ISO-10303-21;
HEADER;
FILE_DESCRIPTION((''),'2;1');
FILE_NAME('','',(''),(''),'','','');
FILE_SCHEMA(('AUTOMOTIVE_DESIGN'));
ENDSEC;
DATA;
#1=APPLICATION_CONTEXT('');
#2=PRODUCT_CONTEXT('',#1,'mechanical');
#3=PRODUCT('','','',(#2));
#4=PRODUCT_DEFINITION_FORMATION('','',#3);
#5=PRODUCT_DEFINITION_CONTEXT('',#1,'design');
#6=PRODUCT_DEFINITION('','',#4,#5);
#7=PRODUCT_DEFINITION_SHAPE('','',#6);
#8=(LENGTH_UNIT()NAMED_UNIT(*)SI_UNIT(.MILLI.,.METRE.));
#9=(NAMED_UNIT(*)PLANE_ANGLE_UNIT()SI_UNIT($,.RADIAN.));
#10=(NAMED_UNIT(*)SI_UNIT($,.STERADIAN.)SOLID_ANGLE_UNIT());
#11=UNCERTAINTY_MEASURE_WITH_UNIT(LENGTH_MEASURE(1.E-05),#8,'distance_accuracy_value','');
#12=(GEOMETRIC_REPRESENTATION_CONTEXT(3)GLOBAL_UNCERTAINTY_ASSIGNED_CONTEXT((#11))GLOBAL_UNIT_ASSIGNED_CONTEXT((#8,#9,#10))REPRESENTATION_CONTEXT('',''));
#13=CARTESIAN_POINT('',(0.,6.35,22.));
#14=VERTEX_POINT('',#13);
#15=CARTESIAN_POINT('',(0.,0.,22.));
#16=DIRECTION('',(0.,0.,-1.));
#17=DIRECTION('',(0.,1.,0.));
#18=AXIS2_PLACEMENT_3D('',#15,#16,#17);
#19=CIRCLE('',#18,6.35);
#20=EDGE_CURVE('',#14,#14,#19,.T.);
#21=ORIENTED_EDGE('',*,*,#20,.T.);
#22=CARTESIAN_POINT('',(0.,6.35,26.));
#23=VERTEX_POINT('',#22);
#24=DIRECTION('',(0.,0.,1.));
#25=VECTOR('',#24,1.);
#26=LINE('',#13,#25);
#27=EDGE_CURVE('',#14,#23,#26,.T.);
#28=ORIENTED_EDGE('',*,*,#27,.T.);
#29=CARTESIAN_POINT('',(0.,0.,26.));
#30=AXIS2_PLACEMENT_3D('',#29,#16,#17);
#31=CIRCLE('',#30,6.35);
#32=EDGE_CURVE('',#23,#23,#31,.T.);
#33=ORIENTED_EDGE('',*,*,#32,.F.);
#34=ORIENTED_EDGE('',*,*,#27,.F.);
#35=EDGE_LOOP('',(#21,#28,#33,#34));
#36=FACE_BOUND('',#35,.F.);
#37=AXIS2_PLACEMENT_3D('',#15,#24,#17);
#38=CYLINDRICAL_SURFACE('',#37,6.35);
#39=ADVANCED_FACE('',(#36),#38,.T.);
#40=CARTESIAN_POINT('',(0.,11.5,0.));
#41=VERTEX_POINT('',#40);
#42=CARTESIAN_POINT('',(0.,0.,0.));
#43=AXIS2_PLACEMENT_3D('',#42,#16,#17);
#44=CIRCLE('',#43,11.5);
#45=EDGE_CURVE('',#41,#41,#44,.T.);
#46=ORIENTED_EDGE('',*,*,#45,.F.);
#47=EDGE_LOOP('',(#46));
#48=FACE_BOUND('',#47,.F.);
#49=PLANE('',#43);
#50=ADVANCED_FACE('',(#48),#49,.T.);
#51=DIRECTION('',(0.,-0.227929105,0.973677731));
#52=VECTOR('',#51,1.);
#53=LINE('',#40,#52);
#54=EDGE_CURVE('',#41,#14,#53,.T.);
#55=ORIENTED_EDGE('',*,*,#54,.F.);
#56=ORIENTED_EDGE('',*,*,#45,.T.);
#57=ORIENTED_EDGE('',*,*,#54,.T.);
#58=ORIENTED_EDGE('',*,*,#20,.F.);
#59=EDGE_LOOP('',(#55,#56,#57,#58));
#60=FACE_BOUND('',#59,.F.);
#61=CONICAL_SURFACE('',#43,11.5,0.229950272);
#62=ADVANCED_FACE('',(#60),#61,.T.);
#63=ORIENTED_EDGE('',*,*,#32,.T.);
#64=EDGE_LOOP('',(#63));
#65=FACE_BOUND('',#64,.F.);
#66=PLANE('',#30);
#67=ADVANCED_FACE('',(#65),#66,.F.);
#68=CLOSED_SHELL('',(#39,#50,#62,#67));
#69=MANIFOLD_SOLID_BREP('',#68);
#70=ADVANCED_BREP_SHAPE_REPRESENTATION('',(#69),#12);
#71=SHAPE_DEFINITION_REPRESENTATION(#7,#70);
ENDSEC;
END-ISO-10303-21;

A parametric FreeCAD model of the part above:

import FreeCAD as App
import Part
import Sketcher
from FreeCAD import Vector
Q = App.Units.Quantity


def add_polygon(sketch, points):
    """Adds a closed chain of lines whose ends are joined by coincident constraints."""
    first, n = sketch.GeometryCount, len(points)
    for a, b in zip(points, points[1:] + points[:1]):
        sketch.addGeometry(Part.LineSegment(App.Vector(*a, 0), App.Vector(*b, 0)), False)
    for i in range(n):
        sketch.addConstraint(Sketcher.Constraint("Coincident", first + i, 2, first + (i + 1) % n, 1))

doc = App.newDocument("Part")
body = doc.addObject("PartDesign::Body", "Body")

# Sketch on YZ plane
sketch1 = body.newObject("Sketcher::SketchObject", "Sketch")
sketch1.AttachmentSupport = (doc.getObject("YZ_Plane"), [""])
sketch1.MapMode = "FlatFace"
add_polygon(sketch1, [(0, 26), (0, 0), (11.5, 0), (6.3, 22), (6.3, 26)])  # lines 0-4
sketch1.addConstraint(Sketcher.Constraint("Vertical", 0))
sketch1.addConstraint(Sketcher.Constraint("Horizontal", 1))
sketch1.addConstraint(Sketcher.Constraint("Vertical", 3))
sketch1.addConstraint(Sketcher.Constraint("Horizontal", 4))
sketch1.addConstraint(Sketcher.Constraint("Coincident", 0, 2, -1, 1))
sketch1.addConstraint(Sketcher.Constraint("DistanceY", 0, 2, 0, 1, Q("26 mm")))
sketch1.addConstraint(Sketcher.Constraint("DistanceY", 3, 1, 3, 2, Q("4 mm")))
sketch1.addConstraint(Sketcher.Constraint("DistanceX", 1, 1, 1, 2, Q("11.5 mm")))
sketch1.addConstraint(Sketcher.Constraint("DistanceX", 4, 2, 4, 1, Q("6.35 mm")))
revolution = body.newObject("PartDesign::Revolution", "Revolution")
revolution.Profile = sketch1
revolution.ReferenceAxis = (sketch1, ["V_Axis"])
revolution.Angle = 360

doc.recompute()
